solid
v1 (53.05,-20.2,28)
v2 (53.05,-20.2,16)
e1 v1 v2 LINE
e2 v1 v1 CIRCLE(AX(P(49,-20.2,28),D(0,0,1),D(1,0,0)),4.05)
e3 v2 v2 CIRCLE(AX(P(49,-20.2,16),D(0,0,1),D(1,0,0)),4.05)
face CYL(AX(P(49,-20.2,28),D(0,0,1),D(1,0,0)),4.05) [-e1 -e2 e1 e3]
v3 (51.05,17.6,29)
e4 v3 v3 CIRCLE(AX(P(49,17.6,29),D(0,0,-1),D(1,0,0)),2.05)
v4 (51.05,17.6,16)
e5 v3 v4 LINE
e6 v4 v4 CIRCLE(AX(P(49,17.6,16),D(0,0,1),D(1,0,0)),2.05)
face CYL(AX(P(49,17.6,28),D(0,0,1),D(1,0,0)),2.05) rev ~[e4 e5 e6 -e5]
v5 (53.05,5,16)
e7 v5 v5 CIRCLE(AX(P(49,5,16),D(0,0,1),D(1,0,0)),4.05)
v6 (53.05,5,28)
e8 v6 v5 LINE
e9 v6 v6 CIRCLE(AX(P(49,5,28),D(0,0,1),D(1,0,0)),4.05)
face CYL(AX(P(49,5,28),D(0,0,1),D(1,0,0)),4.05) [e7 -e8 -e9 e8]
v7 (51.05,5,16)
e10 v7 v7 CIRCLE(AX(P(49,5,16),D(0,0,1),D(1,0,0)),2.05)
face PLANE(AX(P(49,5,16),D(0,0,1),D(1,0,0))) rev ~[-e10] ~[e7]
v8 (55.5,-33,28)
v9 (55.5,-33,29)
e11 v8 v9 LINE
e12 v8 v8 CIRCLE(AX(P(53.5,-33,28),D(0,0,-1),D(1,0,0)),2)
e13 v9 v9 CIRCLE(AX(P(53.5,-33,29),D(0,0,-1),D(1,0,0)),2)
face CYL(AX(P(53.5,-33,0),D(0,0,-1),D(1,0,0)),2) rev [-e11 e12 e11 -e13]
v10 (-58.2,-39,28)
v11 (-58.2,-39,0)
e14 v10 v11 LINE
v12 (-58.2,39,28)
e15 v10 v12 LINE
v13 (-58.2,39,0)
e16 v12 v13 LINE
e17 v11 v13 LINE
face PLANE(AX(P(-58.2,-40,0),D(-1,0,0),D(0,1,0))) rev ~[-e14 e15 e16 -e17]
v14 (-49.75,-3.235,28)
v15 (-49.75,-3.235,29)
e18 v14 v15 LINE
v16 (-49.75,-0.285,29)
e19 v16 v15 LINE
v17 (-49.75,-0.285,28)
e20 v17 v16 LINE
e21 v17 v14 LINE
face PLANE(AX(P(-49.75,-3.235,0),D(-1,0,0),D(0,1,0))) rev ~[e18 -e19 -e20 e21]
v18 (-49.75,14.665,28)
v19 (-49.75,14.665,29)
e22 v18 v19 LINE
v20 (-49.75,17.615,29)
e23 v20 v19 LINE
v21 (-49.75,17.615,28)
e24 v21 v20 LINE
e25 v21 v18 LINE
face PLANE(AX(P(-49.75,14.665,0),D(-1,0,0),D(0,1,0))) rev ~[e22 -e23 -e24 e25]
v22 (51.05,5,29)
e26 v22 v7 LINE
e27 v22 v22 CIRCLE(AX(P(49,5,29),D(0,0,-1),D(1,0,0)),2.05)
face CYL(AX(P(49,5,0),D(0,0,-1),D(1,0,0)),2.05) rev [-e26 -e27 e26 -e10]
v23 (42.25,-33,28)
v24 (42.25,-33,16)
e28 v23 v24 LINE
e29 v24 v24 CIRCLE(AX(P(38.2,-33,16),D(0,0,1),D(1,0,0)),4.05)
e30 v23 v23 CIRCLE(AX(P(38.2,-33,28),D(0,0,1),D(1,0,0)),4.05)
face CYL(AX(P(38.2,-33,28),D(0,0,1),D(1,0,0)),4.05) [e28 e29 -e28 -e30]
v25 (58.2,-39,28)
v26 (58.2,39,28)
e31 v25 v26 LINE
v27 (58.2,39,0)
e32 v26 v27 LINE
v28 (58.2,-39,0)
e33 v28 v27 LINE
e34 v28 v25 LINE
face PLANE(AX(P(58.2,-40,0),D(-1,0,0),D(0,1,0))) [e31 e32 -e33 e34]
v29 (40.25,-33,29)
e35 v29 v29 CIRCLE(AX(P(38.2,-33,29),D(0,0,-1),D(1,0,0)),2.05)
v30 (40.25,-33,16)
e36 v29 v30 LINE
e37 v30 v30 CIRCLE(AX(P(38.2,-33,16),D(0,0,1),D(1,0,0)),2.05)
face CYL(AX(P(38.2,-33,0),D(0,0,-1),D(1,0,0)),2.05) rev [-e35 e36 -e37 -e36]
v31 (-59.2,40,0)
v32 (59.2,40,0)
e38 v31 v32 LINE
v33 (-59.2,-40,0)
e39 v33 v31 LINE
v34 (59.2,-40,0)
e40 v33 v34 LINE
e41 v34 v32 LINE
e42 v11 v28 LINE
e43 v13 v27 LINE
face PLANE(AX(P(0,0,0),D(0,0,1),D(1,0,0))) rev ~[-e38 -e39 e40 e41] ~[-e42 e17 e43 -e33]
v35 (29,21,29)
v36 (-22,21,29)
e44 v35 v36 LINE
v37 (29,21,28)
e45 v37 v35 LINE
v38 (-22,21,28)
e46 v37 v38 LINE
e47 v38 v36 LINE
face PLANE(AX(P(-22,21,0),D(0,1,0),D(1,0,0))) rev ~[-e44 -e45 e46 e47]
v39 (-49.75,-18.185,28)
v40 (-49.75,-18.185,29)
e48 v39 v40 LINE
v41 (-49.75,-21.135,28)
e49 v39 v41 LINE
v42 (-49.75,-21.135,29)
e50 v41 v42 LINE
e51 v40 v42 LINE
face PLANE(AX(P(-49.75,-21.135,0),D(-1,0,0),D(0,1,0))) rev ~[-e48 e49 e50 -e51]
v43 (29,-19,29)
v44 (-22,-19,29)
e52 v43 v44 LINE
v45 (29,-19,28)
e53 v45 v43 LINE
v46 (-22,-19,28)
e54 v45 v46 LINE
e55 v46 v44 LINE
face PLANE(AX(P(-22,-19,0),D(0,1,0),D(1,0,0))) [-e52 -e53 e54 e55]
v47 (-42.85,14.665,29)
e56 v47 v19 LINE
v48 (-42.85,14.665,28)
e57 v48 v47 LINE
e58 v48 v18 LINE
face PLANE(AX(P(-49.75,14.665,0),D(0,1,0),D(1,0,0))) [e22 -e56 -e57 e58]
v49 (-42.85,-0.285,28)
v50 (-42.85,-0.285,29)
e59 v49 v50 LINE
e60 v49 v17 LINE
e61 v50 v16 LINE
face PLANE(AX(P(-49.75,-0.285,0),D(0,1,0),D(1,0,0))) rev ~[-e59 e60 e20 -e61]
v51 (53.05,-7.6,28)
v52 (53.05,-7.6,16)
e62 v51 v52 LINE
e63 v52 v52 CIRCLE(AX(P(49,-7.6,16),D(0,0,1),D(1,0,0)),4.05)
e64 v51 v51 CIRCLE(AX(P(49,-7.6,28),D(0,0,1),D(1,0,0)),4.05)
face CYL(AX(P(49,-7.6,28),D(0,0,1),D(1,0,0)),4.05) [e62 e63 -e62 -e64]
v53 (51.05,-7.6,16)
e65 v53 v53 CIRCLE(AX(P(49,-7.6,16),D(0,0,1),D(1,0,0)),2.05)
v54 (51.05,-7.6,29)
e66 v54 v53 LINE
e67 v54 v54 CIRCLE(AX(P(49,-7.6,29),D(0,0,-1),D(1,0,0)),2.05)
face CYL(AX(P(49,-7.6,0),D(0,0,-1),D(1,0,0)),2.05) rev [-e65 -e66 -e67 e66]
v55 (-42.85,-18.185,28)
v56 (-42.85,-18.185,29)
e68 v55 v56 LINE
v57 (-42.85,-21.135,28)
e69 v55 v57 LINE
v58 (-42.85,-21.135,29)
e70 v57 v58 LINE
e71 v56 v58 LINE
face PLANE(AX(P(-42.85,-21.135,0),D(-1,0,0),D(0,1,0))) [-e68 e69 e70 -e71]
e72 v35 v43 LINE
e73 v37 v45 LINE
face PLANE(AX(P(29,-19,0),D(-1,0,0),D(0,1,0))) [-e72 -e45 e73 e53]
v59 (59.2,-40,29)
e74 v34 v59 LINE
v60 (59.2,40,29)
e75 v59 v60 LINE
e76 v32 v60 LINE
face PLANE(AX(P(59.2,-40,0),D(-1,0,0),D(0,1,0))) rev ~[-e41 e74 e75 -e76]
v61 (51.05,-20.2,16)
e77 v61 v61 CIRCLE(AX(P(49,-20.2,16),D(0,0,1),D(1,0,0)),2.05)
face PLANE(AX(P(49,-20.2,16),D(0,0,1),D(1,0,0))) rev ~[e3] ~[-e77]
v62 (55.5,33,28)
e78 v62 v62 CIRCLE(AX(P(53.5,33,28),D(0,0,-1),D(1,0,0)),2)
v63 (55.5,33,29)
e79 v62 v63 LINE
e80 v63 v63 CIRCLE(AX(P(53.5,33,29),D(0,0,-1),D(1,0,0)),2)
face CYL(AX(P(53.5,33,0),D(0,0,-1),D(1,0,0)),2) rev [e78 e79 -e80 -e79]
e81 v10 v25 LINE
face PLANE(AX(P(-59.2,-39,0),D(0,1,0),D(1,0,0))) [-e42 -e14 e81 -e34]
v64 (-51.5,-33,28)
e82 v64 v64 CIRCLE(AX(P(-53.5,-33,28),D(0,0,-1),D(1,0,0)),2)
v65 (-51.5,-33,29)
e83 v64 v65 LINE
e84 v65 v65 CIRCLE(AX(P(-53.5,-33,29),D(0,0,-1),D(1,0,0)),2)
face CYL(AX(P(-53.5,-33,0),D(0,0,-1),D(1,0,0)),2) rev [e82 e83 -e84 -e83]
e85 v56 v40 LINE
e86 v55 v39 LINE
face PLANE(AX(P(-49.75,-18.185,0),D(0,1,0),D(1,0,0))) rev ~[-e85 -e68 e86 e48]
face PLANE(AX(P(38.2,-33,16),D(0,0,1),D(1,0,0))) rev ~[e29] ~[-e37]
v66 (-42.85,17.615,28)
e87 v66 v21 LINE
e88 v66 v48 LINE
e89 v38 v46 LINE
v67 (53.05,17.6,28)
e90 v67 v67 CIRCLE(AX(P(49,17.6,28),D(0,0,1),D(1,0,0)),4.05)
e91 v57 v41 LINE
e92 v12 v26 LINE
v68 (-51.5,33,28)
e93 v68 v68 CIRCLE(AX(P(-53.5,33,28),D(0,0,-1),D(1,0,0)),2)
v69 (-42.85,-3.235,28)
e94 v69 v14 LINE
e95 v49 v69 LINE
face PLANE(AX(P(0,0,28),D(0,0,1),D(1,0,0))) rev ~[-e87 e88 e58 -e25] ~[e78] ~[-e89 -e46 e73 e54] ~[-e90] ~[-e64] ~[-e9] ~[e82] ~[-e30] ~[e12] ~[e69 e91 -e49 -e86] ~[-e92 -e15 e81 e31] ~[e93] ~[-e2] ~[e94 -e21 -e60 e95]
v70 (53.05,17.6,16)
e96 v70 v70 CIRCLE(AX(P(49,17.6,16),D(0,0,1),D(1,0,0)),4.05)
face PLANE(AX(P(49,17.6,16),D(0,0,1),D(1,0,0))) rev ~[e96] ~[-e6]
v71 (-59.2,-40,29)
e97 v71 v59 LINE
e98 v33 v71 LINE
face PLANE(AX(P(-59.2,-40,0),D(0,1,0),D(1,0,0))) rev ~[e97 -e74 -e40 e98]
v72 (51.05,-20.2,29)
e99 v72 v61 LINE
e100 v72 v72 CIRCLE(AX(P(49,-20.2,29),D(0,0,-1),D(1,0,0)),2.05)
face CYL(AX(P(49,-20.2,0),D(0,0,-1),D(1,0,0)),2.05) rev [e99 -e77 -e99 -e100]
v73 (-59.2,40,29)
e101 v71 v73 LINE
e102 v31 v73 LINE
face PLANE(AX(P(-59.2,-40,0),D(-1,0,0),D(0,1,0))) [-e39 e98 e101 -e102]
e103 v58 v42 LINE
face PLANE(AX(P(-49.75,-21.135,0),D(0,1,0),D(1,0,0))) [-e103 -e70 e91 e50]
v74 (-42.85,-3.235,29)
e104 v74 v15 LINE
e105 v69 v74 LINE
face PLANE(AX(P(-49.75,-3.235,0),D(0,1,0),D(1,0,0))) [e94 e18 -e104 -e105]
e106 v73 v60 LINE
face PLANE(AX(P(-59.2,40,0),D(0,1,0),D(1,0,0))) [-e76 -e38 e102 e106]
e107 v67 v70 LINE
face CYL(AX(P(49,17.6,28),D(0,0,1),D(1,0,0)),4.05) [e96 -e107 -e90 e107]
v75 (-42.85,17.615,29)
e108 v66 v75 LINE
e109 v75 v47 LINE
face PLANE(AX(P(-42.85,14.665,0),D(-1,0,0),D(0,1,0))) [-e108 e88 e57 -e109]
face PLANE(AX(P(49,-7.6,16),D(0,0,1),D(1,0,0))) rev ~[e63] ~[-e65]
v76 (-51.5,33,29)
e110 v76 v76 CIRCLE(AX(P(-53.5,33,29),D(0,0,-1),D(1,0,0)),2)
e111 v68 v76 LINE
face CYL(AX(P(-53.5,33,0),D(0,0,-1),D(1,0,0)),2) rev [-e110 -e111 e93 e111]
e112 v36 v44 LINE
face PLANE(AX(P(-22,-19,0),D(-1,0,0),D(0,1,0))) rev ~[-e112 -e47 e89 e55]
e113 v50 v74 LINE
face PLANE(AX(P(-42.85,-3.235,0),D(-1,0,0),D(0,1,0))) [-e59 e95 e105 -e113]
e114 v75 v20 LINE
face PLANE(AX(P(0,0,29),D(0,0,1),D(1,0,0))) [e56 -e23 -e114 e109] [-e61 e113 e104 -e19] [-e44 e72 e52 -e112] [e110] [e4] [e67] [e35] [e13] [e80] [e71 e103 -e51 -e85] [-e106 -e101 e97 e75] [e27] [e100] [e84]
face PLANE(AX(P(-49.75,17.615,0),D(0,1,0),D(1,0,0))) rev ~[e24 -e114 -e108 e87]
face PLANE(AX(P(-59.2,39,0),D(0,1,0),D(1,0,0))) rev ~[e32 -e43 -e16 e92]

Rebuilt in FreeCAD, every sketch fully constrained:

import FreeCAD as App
import Part
import Sketcher

V = App.Vector
Q = App.Units.Quantity


def faces_at(feature, points):
    """Names of the faces that lie closest to the given points."""
    faces = feature.Shape.Faces
    near = lambda p: min(range(len(faces)), key=lambda i: faces[i].distToShape(Part.Vertex(*p))[0])
    return sorted({f"Face{near(p) + 1}" for p in points})

doc = App.newDocument("Part")
params = doc.addObject("Spreadsheet::Sheet", "Params")
for row, (alias, value) in enumerate([
    ("sketch1_height", "80 mm"),
    ("sketch1_width", "118.4 mm"),
    ("pad1_length", "29 mm"),
    ("thickness_wall", "1 mm"),
    ("sketch2_diameter", "4 mm"),
    ("sketch3_width", "51 mm"),
    ("sketch3_height", "40 mm"),
    ("sketch4_diameter", "4.1 mm"),
    ("sketch4_width", "6.9 mm"),
    ("sketch4_height", "2.95 mm"),
    ("sketch5_diameter", "8.1 mm"),
    ("sketch5_diameter2", "4.1 mm"),
    ("pad2_length", "12 mm"),
], start=1):
    params.set(f"A{row}", alias)
    params.set(f"B{row}", "=" + value)
    params.setAlias(f"B{row}", alias)

body = doc.addObject("PartDesign::Body", "Body")

# Sketch on XY plane
sketch1 = doc.addObject("Sketcher::SketchObject", "Sketch")
body.addObject(sketch1)
sketch1.AttachmentSupport = (doc.XY_Plane, [""])
sketch1.MapMode = "FlatFace"
sketch1.addGeometry(Part.LineSegment(V(-59, 40, 0), V(-59, -40, 0)), False)
sketch1.addGeometry(Part.LineSegment(V(-59, -40, 0), V(59, -40, 0)), False)
sketch1.addGeometry(Part.LineSegment(V(59, -40, 0), V(59, 40, 0)), False)
sketch1.addGeometry(Part.LineSegment(V(59, 40, 0), V(-59, 40, 0)), False)
sketch1.addConstraint(Sketcher.Constraint("Coincident", 0, 2, 1, 1))
sketch1.addConstraint(Sketcher.Constraint("Coincident", 1, 2, 2, 1))
sketch1.addConstraint(Sketcher.Constraint("Coincident", 2, 2, 3, 1))
sketch1.addConstraint(Sketcher.Constraint("Coincident", 3, 2, 0, 1))
sketch1.addConstraint(Sketcher.Constraint("Vertical", 0))
sketch1.addConstraint(Sketcher.Constraint("Horizontal", 1))
sketch1.addConstraint(Sketcher.Constraint("Vertical", 2))
sketch1.addConstraint(Sketcher.Constraint("Horizontal", 3))
sketch1.addConstraint(Sketcher.Constraint("Symmetric", 0, 2, 2, 2, -1, 1))
sketch1.addConstraint(Sketcher.Constraint("DistanceY", 0, 2, 0, 1, Q("80 mm")))
sketch1.addConstraint(Sketcher.Constraint("DistanceX", 1, 1, 1, 2, Q("118.4 mm")))
sketch1.setExpression("Constraints[9]", "Params.sketch1_height")
sketch1.setExpression("Constraints[10]", "Params.sketch1_width")
pad1 = doc.addObject("PartDesign::Pad", "Pad")
body.addObject(pad1)
pad1.Profile = sketch1
pad1.setExpression("Length", "Params.pad1_length")
doc.recompute()

thickness = doc.addObject("PartDesign::Thickness", "Thickness")
body.addObject(thickness)
thickness.Base = (pad1, faces_at(pad1, [(0, 0, 0)]))
thickness.setExpression("Value", "Params.thickness_wall")
thickness.Reversed = True
thickness.Join = "Arc"

# Sketch on XY plane
sketch2 = doc.addObject("Sketcher::SketchObject", "Sketch001")
body.addObject(sketch2)
sketch2.AttachmentSupport = (doc.XY_Plane, [""])
sketch2.MapMode = "FlatFace"
sketch2.addGeometry(Part.Circle(V(53.5, 33, 0), V(0, 0, 1), 2), False)
sketch2.addGeometry(Part.Circle(V(53.5, -33, 0), V(0, 0, 1), 2), False)
sketch2.addGeometry(Part.Circle(V(-53.5, -33, 0), V(0, 0, 1), 2), False)
sketch2.addGeometry(Part.Circle(V(-53.5, 33, 0), V(0, 0, 1), 2), False)
sketch2.addConstraint(Sketcher.Constraint("Equal", 0, 1))
sketch2.addConstraint(Sketcher.Constraint("Equal", 1, 2))
sketch2.addConstraint(Sketcher.Constraint("Equal", 2, 3))
sketch2.addConstraint(Sketcher.Constraint("Symmetric", 0, 3, 2, 3, -1, 1))
sketch2.addConstraint(Sketcher.Constraint("Symmetric", 1, 3, 3, 3, -1, 1))
sketch2.addConstraint(Sketcher.Constraint("Symmetric", 1, 3, 2, 3, -2))
sketch2.addConstraint(Sketcher.Constraint("Diameter", 0, Q("4 mm")))
sketch2.addConstraint(Sketcher.Constraint("DistanceY", -1, 1, 0, 3, Q("33 mm")))
sketch2.addConstraint(Sketcher.Constraint("DistanceX", 2, 3, 1, 3, Q("107 mm")))
sketch2.setExpression("Constraints[6]", "Params.sketch2_diameter")
pocket1 = doc.addObject("PartDesign::Pocket", "Pocket")
body.addObject(pocket1)
pocket1.Profile = sketch2
pocket1.Type = "ThroughAll"
pocket1.Reversed = True

# Sketch on XY plane
sketch3 = doc.addObject("Sketcher::SketchObject", "Sketch002")
body.addObject(sketch3)
sketch3.AttachmentSupport = (doc.XY_Plane, [""])
sketch3.MapMode = "FlatFace"
sketch3.addGeometry(Part.LineSegment(V(-22, 21, 0), V(-22, -19, 0)), False)
sketch3.addGeometry(Part.LineSegment(V(-22, -19, 0), V(29, -19, 0)), False)
sketch3.addGeometry(Part.LineSegment(V(29, -19, 0), V(29, 21, 0)), False)
sketch3.addGeometry(Part.LineSegment(V(29, 21, 0), V(-22, 21, 0)), False)
sketch3.addConstraint(Sketcher.Constraint("Coincident", 0, 2, 1, 1))
sketch3.addConstraint(Sketcher.Constraint("Coincident", 1, 2, 2, 1))
sketch3.addConstraint(Sketcher.Constraint("Coincident", 2, 2, 3, 1))
sketch3.addConstraint(Sketcher.Constraint("Coincident", 3, 2, 0, 1))
sketch3.addConstraint(Sketcher.Constraint("Vertical", 0))
sketch3.addConstraint(Sketcher.Constraint("Horizontal", 1))
sketch3.addConstraint(Sketcher.Constraint("Vertical", 2))
sketch3.addConstraint(Sketcher.Constraint("Horizontal", 3))
sketch3.addConstraint(Sketcher.Constraint("DistanceX", 1, 1, 1, 2, Q("51 mm")))
sketch3.addConstraint(Sketcher.Constraint("DistanceY", 0, 2, 0, 1, Q("40 mm")))
sketch3.addConstraint(Sketcher.Constraint("DistanceX", 0, 2, -1, 1, Q("22 mm")))
sketch3.addConstraint(Sketcher.Constraint("DistanceY", 0, 2, -1, 1, Q("19 mm")))
sketch3.setExpression("Constraints[8]", "Params.sketch3_width")
sketch3.setExpression("Constraints[9]", "Params.sketch3_height")
pocket2 = doc.addObject("PartDesign::Pocket", "Pocket001")
body.addObject(pocket2)
pocket2.Profile = sketch3
pocket2.Type = "ThroughAll"
pocket2.Reversed = True

# Sketch on XY plane
sketch4 = doc.addObject("Sketcher::SketchObject", "Sketch003")
body.addObject(sketch4)
sketch4.AttachmentSupport = (doc.XY_Plane, [""])
sketch4.MapMode = "FlatFace"
sketch4.addGeometry(Part.Circle(V(49, 17.6, 0), V(0, 0, 1), 2), False)
sketch4.addGeometry(Part.Circle(V(49, 5, 0), V(0, 0, 1), 2), False)
sketch4.addGeometry(Part.Circle(V(49, -7.6, 0), V(0, 0, 1), 2), False)
sketch4.addGeometry(Part.Circle(V(49, -20.2, 0), V(0, 0, 1), 2), False)
sketch4.addGeometry(Part.Circle(V(38.2, -33, 0), V(0, 0, 1), 2), False)
sketch4.addGeometry(Part.LineSegment(V(-49.8, 17.6, 0), V(-49.8, 14.7, 0)), False)
sketch4.addGeometry(Part.LineSegment(V(-49.8, 14.7, 0), V(-42.9, 14.7, 0)), False)
sketch4.addGeometry(Part.LineSegment(V(-42.9, 14.7, 0), V(-42.9, 17.6, 0)), False)
sketch4.addGeometry(Part.LineSegment(V(-42.9, 17.6, 0), V(-49.8, 17.6, 0)), False)
sketch4.addGeometry(Part.LineSegment(V(-49.8, -0.3, 0), V(-49.8, -3.2, 0)), False)
sketch4.addGeometry(Part.LineSegment(V(-49.8, -3.2, 0), V(-42.9, -3.2, 0)), False)
sketch4.addGeometry(Part.LineSegment(V(-42.9, -3.2, 0), V(-42.9, -0.3, 0)), False)
sketch4.addGeometry(Part.LineSegment(V(-42.9, -0.3, 0), V(-49.8, -0.3, 0)), False)
sketch4.addGeometry(Part.LineSegment(V(-49.8, -18.2, 0), V(-49.8, -21.1, 0)), False)
sketch4.addGeometry(Part.LineSegment(V(-49.8, -21.1, 0), V(-42.9, -21.1, 0)), False)
sketch4.addGeometry(Part.LineSegment(V(-42.9, -21.1, 0), V(-42.9, -18.2, 0)), False)
sketch4.addGeometry(Part.LineSegment(V(-42.9, -18.2, 0), V(-49.8, -18.2, 0)), False)
sketch4.addConstraint(Sketcher.Constraint("Coincident", 5, 2, 6, 1))
sketch4.addConstraint(Sketcher.Constraint("Coincident", 6, 2, 7, 1))
sketch4.addConstraint(Sketcher.Constraint("Coincident", 7, 2, 8, 1))
sketch4.addConstraint(Sketcher.Constraint("Coincident", 8, 2, 5, 1))
sketch4.addConstraint(Sketcher.Constraint("Coincident", 9, 2, 10, 1))
sketch4.addConstraint(Sketcher.Constraint("Coincident", 10, 2, 11, 1))
sketch4.addConstraint(Sketcher.Constraint("Coincident", 11, 2, 12, 1))
sketch4.addConstraint(Sketcher.Constraint("Coincident", 12, 2, 9, 1))
sketch4.addConstraint(Sketcher.Constraint("Coincident", 13, 2, 14, 1))
sketch4.addConstraint(Sketcher.Constraint("Coincident", 14, 2, 15, 1))
sketch4.addConstraint(Sketcher.Constraint("Coincident", 15, 2, 16, 1))
sketch4.addConstraint(Sketcher.Constraint("Coincident", 16, 2, 13, 1))
sketch4.addConstraint(Sketcher.Constraint("Vertical", 5))
sketch4.addConstraint(Sketcher.Constraint("Horizontal", 6))
sketch4.addConstraint(Sketcher.Constraint("Vertical", 7))
sketch4.addConstraint(Sketcher.Constraint("Horizontal", 8))
sketch4.addConstraint(Sketcher.Constraint("Vertical", 9))
sketch4.addConstraint(Sketcher.Constraint("Horizontal", 10))
sketch4.addConstraint(Sketcher.Constraint("Vertical", 11))
sketch4.addConstraint(Sketcher.Constraint("Horizontal", 12))
sketch4.addConstraint(Sketcher.Constraint("Vertical", 13))
sketch4.addConstraint(Sketcher.Constraint("Horizontal", 14))
sketch4.addConstraint(Sketcher.Constraint("Vertical", 15))
sketch4.addConstraint(Sketcher.Constraint("Horizontal", 16))
sketch4.addConstraint(Sketcher.Constraint("Equal", 0, 1))
sketch4.addConstraint(Sketcher.Constraint("Equal", 1, 2))
sketch4.addConstraint(Sketcher.Constraint("Equal", 2, 3))
sketch4.addConstraint(Sketcher.Constraint("Equal", 3, 4))
sketch4.addConstraint(Sketcher.Constraint("Vertical", 0, 3, 1, 3))
sketch4.addConstraint(Sketcher.Constraint("Vertical", 1, 3, 2, 3))
sketch4.addConstraint(Sketcher.Constraint("Vertical", 2, 3, 3, 3))
sketch4.addConstraint(Sketcher.Constraint("Vertical", 8, 2, 9, 2))
sketch4.addConstraint(Sketcher.Constraint("Vertical", 7, 2, 10, 2))
sketch4.addConstraint(Sketcher.Constraint("Vertical", 12, 2, 13, 2))
sketch4.addConstraint(Sketcher.Constraint("Vertical", 11, 2, 14, 2))
sketch4.addConstraint(Sketcher.Constraint("Equal", 7, 9))
sketch4.addConstraint(Sketcher.Constraint("Equal", 11, 13))
sketch4.addConstraint(Sketcher.Constraint("Diameter", 0, Q("4.1 mm")))
sketch4.addConstraint(Sketcher.Constraint("DistanceX", 6, 1, 6, 2, Q("6.9 mm")))
sketch4.addConstraint(Sketcher.Constraint("DistanceX", -1, 1, 0, 3, Q("49 mm")))
sketch4.addConstraint(Sketcher.Constraint("DistanceY", -1, 1, 1, 3, Q("5 mm")))
sketch4.addConstraint(Sketcher.Constraint("DistanceY", 4, 3, -1, 1, Q("33 mm")))
sketch4.addConstraint(Sketcher.Constraint("DistanceY", 5, 2, 5, 1, Q("2.95 mm")))
sketch4.addConstraint(Sketcher.Constraint("DistanceY", -1, 1, 0, 3, Q("17.6 mm")))
sketch4.addConstraint(Sketcher.Constraint("DistanceY", 2, 3, -1, 1, Q("7.6 mm")))
sketch4.addConstraint(Sketcher.Constraint("DistanceY", 3, 3, -1, 1, Q("20.2 mm")))
sketch4.addConstraint(Sketcher.Constraint("DistanceX", -1, 1, 4, 3, Q("38.2 mm")))
sketch4.addConstraint(Sketcher.Constraint("DistanceY", 9, 2, 5, 2, Q("17.9 mm")))
sketch4.addConstraint(Sketcher.Constraint("DistanceY", 13, 2, 9, 2, Q("17.9 mm")))
sketch4.addConstraint(Sketcher.Constraint("DistanceX", 5, 2, -1, 1, Q("49.75 mm")))
sketch4.addConstraint(Sketcher.Constraint("DistanceY", -1, 1, 5, 2, Q("14.665 mm")))
sketch4.setExpression("Constraints[37]", "Params.sketch4_diameter")
sketch4.setExpression("Constraints[38]", "Params.sketch4_width")
sketch4.setExpression("Constraints[42]", "Params.sketch4_height")
pocket3 = doc.addObject("PartDesign::Pocket", "Pocket002")
body.addObject(pocket3)
pocket3.Profile = sketch4
pocket3.Type = "ThroughAll"
pocket3.Reversed = True

# Sketch on XY plane
sketch5 = doc.addObject("Sketcher::SketchObject", "Sketch004")
body.addObject(sketch5)
sketch5.AttachmentSupport = (doc.XY_Plane, [""])
sketch5.MapMode = "FlatFace"
sketch5.AttachmentOffset = App.Placement(V(0, 0, 28), App.Rotation())
sketch5.addGeometry(Part.Circle(V(49, 17.6, 0), V(0, 0, 1), 4), False)
sketch5.addGeometry(Part.Circle(V(49, 17.6, 0), V(0, 0, 1), 2), False)
sketch5.addGeometry(Part.Circle(V(49, 5, 0), V(0, 0, 1), 4), False)
sketch5.addGeometry(Part.Circle(V(49, 5, 0), V(0, 0, 1), 2), False)
sketch5.addGeometry(Part.Circle(V(49, -7.6, 0), V(0, 0, 1), 4), False)
sketch5.addGeometry(Part.Circle(V(49, -7.6, 0), V(0, 0, 1), 2), False)
sketch5.addGeometry(Part.Circle(V(49, -20.2, 0), V(0, 0, 1), 4), False)
sketch5.addGeometry(Part.Circle(V(49, -20.2, 0), V(0, 0, 1), 2), False)
sketch5.addGeometry(Part.Circle(V(38.2, -33, 0), V(0, 0, 1), 4), False)
sketch5.addGeometry(Part.Circle(V(38.2, -33, 0), V(0, 0, 1), 2), False)
sketch5.addConstraint(Sketcher.Constraint("Coincident", 1, 3, 0, 3))
sketch5.addConstraint(Sketcher.Constraint("Coincident", 3, 3, 2, 3))
sketch5.addConstraint(Sketcher.Constraint("Coincident", 5, 3, 4, 3))
sketch5.addConstraint(Sketcher.Constraint("Coincident", 7, 3, 6, 3))
sketch5.addConstraint(Sketcher.Constraint("Coincident", 9, 3, 8, 3))
sketch5.addConstraint(Sketcher.Constraint("Equal", 0, 2))
sketch5.addConstraint(Sketcher.Constraint("Equal", 1, 3))
sketch5.addConstraint(Sketcher.Constraint("Equal", 2, 4))
sketch5.addConstraint(Sketcher.Constraint("Equal", 3, 5))
sketch5.addConstraint(Sketcher.Constraint("Equal", 4, 6))
sketch5.addConstraint(Sketcher.Constraint("Equal", 5, 7))
sketch5.addConstraint(Sketcher.Constraint("Equal", 6, 8))
sketch5.addConstraint(Sketcher.Constraint("Equal", 7, 9))
sketch5.addConstraint(Sketcher.Constraint("Vertical", 1, 3, 2, 3))
sketch5.addConstraint(Sketcher.Constraint("Vertical", 3, 3, 4, 3))
sketch5.addConstraint(Sketcher.Constraint("Vertical", 5, 3, 6, 3))
sketch5.addConstraint(Sketcher.Constraint("Diameter", 0, Q("8.1 mm")))
sketch5.addConstraint(Sketcher.Constraint("Diameter", 1, Q("4.1 mm")))
sketch5.addConstraint(Sketcher.Constraint("DistanceX", -1, 1, 0, 3, Q("49 mm")))
sketch5.addConstraint(Sketcher.Constraint("DistanceY", -1, 1, 2, 3, Q("5 mm")))
sketch5.addConstraint(Sketcher.Constraint("DistanceY", 8, 3, -1, 1, Q("33 mm")))
sketch5.addConstraint(Sketcher.Constraint("DistanceY", -1, 1, 0, 3, Q("17.6 mm")))
sketch5.addConstraint(Sketcher.Constraint("DistanceY", 4, 3, -1, 1, Q("7.6 mm")))
sketch5.addConstraint(Sketcher.Constraint("DistanceY", 6, 3, -1, 1, Q("20.2 mm")))
sketch5.addConstraint(Sketcher.Constraint("DistanceX", -1, 1, 8, 3, Q("38.2 mm")))
sketch5.setExpression("Constraints[16]", "Params.sketch5_diameter")
sketch5.setExpression("Constraints[17]", "Params.sketch5_diameter2")
pad2 = doc.addObject("PartDesign::Pad", "Pad001")
body.addObject(pad2)
pad2.Profile = sketch5
pad2.setExpression("Length", "Params.pad2_length")
pad2.Reversed = True

doc.recompute()
